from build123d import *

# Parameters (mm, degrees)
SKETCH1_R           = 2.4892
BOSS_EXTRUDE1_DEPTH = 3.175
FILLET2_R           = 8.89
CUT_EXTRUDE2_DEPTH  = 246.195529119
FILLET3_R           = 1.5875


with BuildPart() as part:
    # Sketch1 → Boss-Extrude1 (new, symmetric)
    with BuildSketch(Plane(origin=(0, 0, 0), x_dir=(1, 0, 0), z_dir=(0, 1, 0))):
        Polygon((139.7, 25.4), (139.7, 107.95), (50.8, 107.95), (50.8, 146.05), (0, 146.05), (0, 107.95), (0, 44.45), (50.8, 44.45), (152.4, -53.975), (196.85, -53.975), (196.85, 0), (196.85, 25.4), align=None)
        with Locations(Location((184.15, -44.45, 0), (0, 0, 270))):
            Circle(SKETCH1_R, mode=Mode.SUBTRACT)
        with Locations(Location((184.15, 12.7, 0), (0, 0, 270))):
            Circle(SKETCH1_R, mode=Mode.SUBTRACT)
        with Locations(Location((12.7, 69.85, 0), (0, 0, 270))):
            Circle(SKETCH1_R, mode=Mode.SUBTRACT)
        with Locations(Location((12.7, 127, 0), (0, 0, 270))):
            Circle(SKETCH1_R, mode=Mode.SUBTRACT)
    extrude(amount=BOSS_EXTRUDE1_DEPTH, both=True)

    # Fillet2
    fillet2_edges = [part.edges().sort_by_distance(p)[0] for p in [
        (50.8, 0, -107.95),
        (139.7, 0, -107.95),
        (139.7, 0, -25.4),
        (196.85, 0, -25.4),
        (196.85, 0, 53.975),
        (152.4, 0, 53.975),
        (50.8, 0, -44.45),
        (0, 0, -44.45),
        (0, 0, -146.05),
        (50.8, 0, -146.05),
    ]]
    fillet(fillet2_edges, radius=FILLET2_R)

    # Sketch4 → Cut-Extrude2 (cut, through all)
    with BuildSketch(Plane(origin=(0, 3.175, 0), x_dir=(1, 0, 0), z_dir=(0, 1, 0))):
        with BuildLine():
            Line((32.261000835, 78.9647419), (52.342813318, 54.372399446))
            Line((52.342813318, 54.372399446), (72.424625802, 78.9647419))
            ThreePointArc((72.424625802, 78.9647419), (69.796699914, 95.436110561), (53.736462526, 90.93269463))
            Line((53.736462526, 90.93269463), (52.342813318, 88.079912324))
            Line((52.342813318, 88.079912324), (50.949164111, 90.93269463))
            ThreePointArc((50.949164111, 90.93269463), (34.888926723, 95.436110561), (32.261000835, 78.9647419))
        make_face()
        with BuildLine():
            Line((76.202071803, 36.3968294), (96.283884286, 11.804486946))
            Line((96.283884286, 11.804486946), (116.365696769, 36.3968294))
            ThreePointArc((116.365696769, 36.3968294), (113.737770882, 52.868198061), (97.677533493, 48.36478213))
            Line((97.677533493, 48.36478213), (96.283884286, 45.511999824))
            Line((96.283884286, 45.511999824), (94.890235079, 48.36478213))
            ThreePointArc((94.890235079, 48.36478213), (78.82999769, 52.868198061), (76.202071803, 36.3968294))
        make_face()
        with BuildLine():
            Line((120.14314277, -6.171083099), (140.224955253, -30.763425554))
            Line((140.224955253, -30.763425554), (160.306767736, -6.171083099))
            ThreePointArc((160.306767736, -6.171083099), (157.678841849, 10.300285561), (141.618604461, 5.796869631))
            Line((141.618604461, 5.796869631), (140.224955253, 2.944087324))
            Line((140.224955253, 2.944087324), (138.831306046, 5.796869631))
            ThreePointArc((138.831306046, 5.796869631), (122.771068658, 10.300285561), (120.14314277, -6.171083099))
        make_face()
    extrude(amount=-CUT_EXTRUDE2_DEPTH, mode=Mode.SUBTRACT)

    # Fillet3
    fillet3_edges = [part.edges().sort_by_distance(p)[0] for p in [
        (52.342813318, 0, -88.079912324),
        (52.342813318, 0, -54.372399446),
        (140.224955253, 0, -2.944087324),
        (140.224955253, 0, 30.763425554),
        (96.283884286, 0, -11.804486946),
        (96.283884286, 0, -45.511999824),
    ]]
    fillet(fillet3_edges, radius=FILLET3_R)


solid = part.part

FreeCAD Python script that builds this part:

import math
import FreeCAD as App
import Part
import Sketcher

V = App.Vector
Q = App.Units.Quantity


def edges_at(feature, points):
    """Names of the edges that pass closest to the given points."""
    edges = feature.Shape.Edges
    near = lambda p: min(range(len(edges)), key=lambda i: edges[i].distToShape(Part.Vertex(*p))[0])
    return sorted({f"Edge{near(p) + 1}" for p in points})


def add_polygon(sketch, points):
    """Adds a closed chain of lines whose ends are joined by coincident constraints."""
    first, n = sketch.GeometryCount, len(points)
    for a, b in zip(points, points[1:] + points[:1]):
        sketch.addGeometry(Part.LineSegment(App.Vector(*a, 0), App.Vector(*b, 0)), False)
    for i in range(n):
        sketch.addConstraint(Sketcher.Constraint("Coincident", first + i, 2, first + (i + 1) % n, 1))

doc = App.newDocument("Part")
params = doc.addObject("Spreadsheet::Sheet", "Params")
for row, (alias, value) in enumerate([
    ("sketch1_width", "2 in"),
    ("sketch1_height", "4 in"),
    ("sketch1_diameter", "0.196 in"),
    ("sketch1_width2", "3.5 in"),
    ("sketch1_height2", "1.5 in"),
    ("pad1_length", "0.25 in"),
    ("fillet_radius", "0.35 in"),
    ("sketch2_length", "1.25 in"),
    ("sketch2_length2", "0.125 in"),
    ("fillet2_radius", "0.0625 in"),
], start=1):
    params.set(f"A{row}", alias)
    params.set(f"B{row}", "=" + value)
    params.setAlias(f"B{row}", alias)

body = doc.addObject("PartDesign::Body", "Body")

# Sketch on XZ plane
sketch1 = body.newObject("Sketcher::SketchObject", "Sketch")
sketch1.AttachmentSupport = (doc.getObject("XZ_Plane"), [""])
sketch1.MapMode = "FlatFace"
add_polygon(sketch1, [(139.7, -25.4), (139.7, -108), (50.8, -108), (50.8, -146.1), (0, -146.1), (0, -44.5), (50.8, -44.5), (152.4, 54), (196.8, 54), (196.8, -25.4)])  # lines 0-9
sketch1.addGeometry(Part.Circle(V(184.2, 44.5, 0), V(0, 0, 1), 2.5), False)  # 10
sketch1.addGeometry(Part.Circle(V(184.2, -12.7, 0), V(0, 0, 1), 2.5), False)  # 11
sketch1.addGeometry(Part.Circle(V(12.7, -69.8, 0), V(0, 0, 1), 2.5), False)  # 12
sketch1.addGeometry(Part.Circle(V(12.7, -127, 0), V(0, 0, 1), 2.5), False)  # 13
sketch1.addConstraint(Sketcher.Constraint("Vertical", 0))
sketch1.addConstraint(Sketcher.Constraint("Horizontal", 1))
sketch1.addConstraint(Sketcher.Constraint("Vertical", 2))
sketch1.addConstraint(Sketcher.Constraint("Horizontal", 3))
sketch1.addConstraint(Sketcher.Constraint("Vertical", 4))
sketch1.addConstraint(Sketcher.Constraint("Horizontal", 5))
sketch1.addConstraint(Sketcher.Constraint("Horizontal", 7))
sketch1.addConstraint(Sketcher.Constraint("Vertical", 8))
sketch1.addConstraint(Sketcher.Constraint("Horizontal", 9))
sketch1.addConstraint(Sketcher.Constraint("Equal", 10, 11))
sketch1.addConstraint(Sketcher.Constraint("Equal", 11, 12))
sketch1.addConstraint(Sketcher.Constraint("Equal", 12, 13))
sketch1.addConstraint(Sketcher.Constraint("PointOnObject", 3, 2, -2))
sketch1.addConstraint(Sketcher.Constraint("Vertical", 10, 3, 11, 3))
sketch1.addConstraint(Sketcher.Constraint("Vertical", 12, 3, 13, 3))
sketch1.addConstraint(Sketcher.Constraint("Vertical", 2, 2, 5, 2))
sketch1.addConstraint(Sketcher.Constraint("DistanceX", 3, 2, 3, 1, Q("2 in")))
sketch1.addConstraint(Sketcher.Constraint("DistanceY", 4, 1, 4, 2, Q("4 in")))
sketch1.addConstraint(Sketcher.Constraint("Diameter", 10, Q("0.196 in")))
sketch1.addConstraint(Sketcher.Constraint("DistanceX", 1, 2, 1, 1, Q("3.5 in")))
sketch1.addConstraint(Sketcher.Constraint("DistanceY", 2, 2, 2, 1, Q("1.5 in")))
sketch1.addConstraint(Sketcher.Constraint("DistanceY", 13, 3, -1, 1, Q("5 in")))
sketch1.addConstraint(Sketcher.Constraint("DistanceX", -1, 1, 6, 2, Q("6 in")))
sketch1.addConstraint(Sketcher.Constraint("DistanceY", 8, 2, -1, 1, Q("1 in")))
sketch1.addConstraint(Sketcher.Constraint("DistanceX", 13, 3, 0, 2, Q("5 in")))
sketch1.addConstraint(Sketcher.Constraint("DistanceY", 0, 2, 10, 3, Q("6 in")))
sketch1.addConstraint(Sketcher.Constraint("DistanceY", 2, 2, 12, 3, Q("3 in")))
sketch1.addConstraint(Sketcher.Constraint("DistanceX", 7, 1, 7, 2, Q("1.75 in")))
sketch1.addConstraint(Sketcher.Constraint("DistanceY", 0, 2, 0, 1, Q("3.25 in")))
sketch1.addConstraint(Sketcher.Constraint("DistanceY", 11, 3, -1, 1, Q("0.5 in")))
sketch1.addConstraint(Sketcher.Constraint("DistanceX", 10, 3, 7, 2, Q("0.5 in")))
sketch1.addConstraint(Sketcher.Constraint("DistanceY", 8, 2, 8, 1, Q("3.125 in")))
sketch1.setExpression("Constraints[26]", "Params.sketch1_width")
sketch1.setExpression("Constraints[27]", "Params.sketch1_height")
sketch1.setExpression("Constraints[28]", "Params.sketch1_diameter")
sketch1.setExpression("Constraints[29]", "Params.sketch1_width2")
sketch1.setExpression("Constraints[30]", "Params.sketch1_height2")
pad1 = body.newObject("PartDesign::Pad", "Pad")
pad1.Profile = sketch1
pad1.setExpression("Length", "Params.pad1_length")
pad1.Midplane = True
doc.recompute()

fillet = body.newObject("PartDesign::Fillet", "Fillet")
fillet.Base = (pad1, edges_at(pad1, [
    (50.8, 0, -107.95),
    (139.7, 0, -107.95),
    (139.7, 0, -25.4),
    (196.85, 0, -25.4),
    (196.85, 0, 53.975),
    (152.4, 0, 53.975),
    (50.8, 0, -44.45),
    (0, 0, -44.45),
    (0, 0, -146.05),
    (50.8, 0, -146.05),
]))
fillet.setExpression("Radius", "Params.fillet_radius")

# Sketch on XZ plane
sketch2 = body.newObject("Sketcher::SketchObject", "Sketch001")
sketch2.AttachmentSupport = (doc.getObject("XZ_Plane"), [""])
sketch2.MapMode = "FlatFace"
sketch2.AttachmentOffset = App.Placement(V(0, 0, -0.125 * 25.4), App.Rotation())
sketch2.addGeometry(Part.LineSegment(V(32.3, -79, 0), V(52.3, -54.4, 0)), False)
sketch2.addGeometry(Part.LineSegment(V(52.3, -54.4, 0), V(72.4, -79, 0)), False)
sketch2.addGeometry(Part.ArcOfCircle(Part.Circle(V(63.8, -86, 0), V(0, 0, 1), 11.2), math.radians(-154), math.radians(39)), False)
sketch2.addGeometry(Part.LineSegment(V(53.7, -90.9, 0), V(52.3, -88.1, 0)), False)
sketch2.addGeometry(Part.LineSegment(V(52.3, -88.1, 0), V(50.9, -90.9, 0)), False)
sketch2.addGeometry(Part.ArcOfCircle(Part.Circle(V(40.9, -86, 0), V(0, 0, 1), 11.2), math.radians(141), math.radians(334)), False)
sketch2.addGeometry(Part.LineSegment(V(76.2, -36.4, 0), V(96.3, -11.8, 0)), False)
sketch2.addGeometry(Part.LineSegment(V(96.3, -11.8, 0), V(116.4, -36.4, 0)), False)
sketch2.addGeometry(Part.ArcOfCircle(Part.Circle(V(107.7, -43.5, 0), V(0, 0, 1), 11.2), math.radians(-154), math.radians(39)), False)
sketch2.addGeometry(Part.LineSegment(V(97.7, -48.4, 0), V(96.3, -45.5, 0)), False)
sketch2.addGeometry(Part.LineSegment(V(96.3, -45.5, 0), V(94.9, -48.4, 0)), False)
sketch2.addGeometry(Part.ArcOfCircle(Part.Circle(V(84.9, -43.5, 0), V(0, 0, 1), 11.2), math.radians(141), math.radians(334)), False)
sketch2.addGeometry(Part.LineSegment(V(120.1, 6.2, 0), V(140.2, 30.8, 0)), False)
sketch2.addGeometry(Part.LineSegment(V(140.2, 30.8, 0), V(160.3, 6.2, 0)), False)
sketch2.addGeometry(Part.ArcOfCircle(Part.Circle(V(151.7, -0.9, 0), V(0, 0, 1), 11.2), math.radians(-154), math.radians(39)), False)
sketch2.addGeometry(Part.LineSegment(V(141.6, -5.8, 0), V(140.2, -2.9, 0)), False)
sketch2.addGeometry(Part.LineSegment(V(140.2, -2.9, 0), V(138.8, -5.8, 0)), False)
sketch2.addGeometry(Part.ArcOfCircle(Part.Circle(V(128.8, -0.9, 0), V(0, 0, 1), 11.2), math.radians(141), math.radians(334)), False)
sketch2.addConstraint(Sketcher.Constraint("Coincident", 0, 2, 1, 1))
sketch2.addConstraint(Sketcher.Constraint("Tangent", 1, 2, 2, 2))
sketch2.addConstraint(Sketcher.Constraint("Tangent", 2, 1, 3, 1))
sketch2.addConstraint(Sketcher.Constraint("Coincident", 3, 2, 4, 1))
sketch2.addConstraint(Sketcher.Constraint("Tangent", 4, 2, 5, 2))
sketch2.addConstraint(Sketcher.Constraint("Tangent", 5, 1, 0, 1))
sketch2.addConstraint(Sketcher.Constraint("Coincident", 6, 2, 7, 1))
sketch2.addConstraint(Sketcher.Constraint("Tangent", 7, 2, 8, 2))
sketch2.addConstraint(Sketcher.Constraint("Tangent", 8, 1, 9, 1))
sketch2.addConstraint(Sketcher.Constraint("Coincident", 9, 2, 10, 1))
sketch2.addConstraint(Sketcher.Constraint("Tangent", 10, 2, 11, 2))
sketch2.addConstraint(Sketcher.Constraint("Tangent", 11, 1, 6, 1))
sketch2.addConstraint(Sketcher.Constraint("Coincident", 12, 2, 13, 1))
sketch2.addConstraint(Sketcher.Constraint("Tangent", 13, 2, 14, 2))
sketch2.addConstraint(Sketcher.Constraint("Tangent", 14, 1, 15, 1))
sketch2.addConstraint(Sketcher.Constraint("Coincident", 15, 2, 16, 1))
sketch2.addConstraint(Sketcher.Constraint("Tangent", 16, 2, 17, 2))
sketch2.addConstraint(Sketcher.Constraint("Tangent", 17, 1, 12, 1))
sketch2.addConstraint(Sketcher.Constraint("Equal", 2, 5))
sketch2.addConstraint(Sketcher.Constraint("Equal", 5, 8))
sketch2.addConstraint(Sketcher.Constraint("Equal", 8, 11))
sketch2.addConstraint(Sketcher.Constraint("Equal", 11, 14))
sketch2.addConstraint(Sketcher.Constraint("Equal", 14, 17))
sketch2.addConstraint(Sketcher.Constraint("Parallel", 0, 6))
sketch2.addConstraint(Sketcher.Constraint("Parallel", 1, 7))
sketch2.addConstraint(Sketcher.Constraint("Parallel", 3, 9))
sketch2.addConstraint(Sketcher.Constraint("Parallel", 4, 10))
sketch2.addConstraint(Sketcher.Constraint("Parallel", 6, 12))
sketch2.addConstraint(Sketcher.Constraint("Parallel", 7, 13))
sketch2.addConstraint(Sketcher.Constraint("Parallel", 9, 15))
sketch2.addConstraint(Sketcher.Constraint("Parallel", 10, 16))
sketch2.addConstraint(Sketcher.Constraint("Horizontal", 2, 3, 5, 3))
sketch2.addConstraint(Sketcher.Constraint("Horizontal", 8, 3, 11, 3))
sketch2.addConstraint(Sketcher.Constraint("Horizontal", 14, 3, 17, 3))
sketch2.addConstraint(Sketcher.Constraint("Horizontal", 2, 1, 4, 2))
sketch2.addConstraint(Sketcher.Constraint("Horizontal", 1, 2, 5, 1))
sketch2.addConstraint(Sketcher.Constraint("Equal", 1, 6))
sketch2.addConstraint(Sketcher.Constraint("Equal", 7, 12))
sketch2.addConstraint(Sketcher.Constraint("DistanceX", 5, 3, 2, 3, Q("0.9 in")))
sketch2.addConstraint(Sketcher.Constraint("Distance", 0, Q("1.25 in")))
sketch2.addConstraint(Sketcher.Constraint("Distance", 3, Q("0.125 in")))
sketch2.addConstraint(Sketcher.Constraint("Radius", 2, Q("11.169942 mm")))
sketch2.addConstraint(Sketcher.Constraint("DistanceY", 0, 2, -1, 1, Q("54.372399 mm")))
sketch2.addConstraint(Sketcher.Constraint("DistanceX", -1, 1, 5, 1, Q("32.261001 mm")))
sketch2.addConstraint(Sketcher.Constraint("DistanceY", 9, 2, -1, 1, Q("45.512 mm")))
sketch2.addConstraint(Sketcher.Constraint("DistanceX", -1, 1, 11, 1, Q("76.202072 mm")))
sketch2.addConstraint(Sketcher.Constraint("DistanceY", 14, 1, -1, 1, Q("5.79687 mm")))
sketch2.addConstraint(Sketcher.Constraint("DistanceX", 8, 3, 14, 3, Q("43.941071 mm")))
sketch2.setExpression("Constraints[39]", "Params.sketch2_length")
sketch2.setExpression("Constraints[40]", "Params.sketch2_length2")
pocket1 = body.newObject("PartDesign::Pocket", "Pocket")
pocket1.Profile = sketch2
pocket1.Type = "ThroughAll"
pocket1.Reversed = True
doc.recompute()

fillet2 = body.newObject("PartDesign::Fillet", "Fillet001")
fillet2.Base = (pocket1, edges_at(pocket1, [
    (52.343, 0, -88.08),
    (52.343, 0, -54.372),
    (140.225, 0, -2.944),
    (140.225, 0, 30.763),
    (96.284, 0, -11.804),
    (96.284, 0, -45.512),
]))
fillet2.setExpression("Radius", "Params.fillet2_radius")

doc.recompute()
